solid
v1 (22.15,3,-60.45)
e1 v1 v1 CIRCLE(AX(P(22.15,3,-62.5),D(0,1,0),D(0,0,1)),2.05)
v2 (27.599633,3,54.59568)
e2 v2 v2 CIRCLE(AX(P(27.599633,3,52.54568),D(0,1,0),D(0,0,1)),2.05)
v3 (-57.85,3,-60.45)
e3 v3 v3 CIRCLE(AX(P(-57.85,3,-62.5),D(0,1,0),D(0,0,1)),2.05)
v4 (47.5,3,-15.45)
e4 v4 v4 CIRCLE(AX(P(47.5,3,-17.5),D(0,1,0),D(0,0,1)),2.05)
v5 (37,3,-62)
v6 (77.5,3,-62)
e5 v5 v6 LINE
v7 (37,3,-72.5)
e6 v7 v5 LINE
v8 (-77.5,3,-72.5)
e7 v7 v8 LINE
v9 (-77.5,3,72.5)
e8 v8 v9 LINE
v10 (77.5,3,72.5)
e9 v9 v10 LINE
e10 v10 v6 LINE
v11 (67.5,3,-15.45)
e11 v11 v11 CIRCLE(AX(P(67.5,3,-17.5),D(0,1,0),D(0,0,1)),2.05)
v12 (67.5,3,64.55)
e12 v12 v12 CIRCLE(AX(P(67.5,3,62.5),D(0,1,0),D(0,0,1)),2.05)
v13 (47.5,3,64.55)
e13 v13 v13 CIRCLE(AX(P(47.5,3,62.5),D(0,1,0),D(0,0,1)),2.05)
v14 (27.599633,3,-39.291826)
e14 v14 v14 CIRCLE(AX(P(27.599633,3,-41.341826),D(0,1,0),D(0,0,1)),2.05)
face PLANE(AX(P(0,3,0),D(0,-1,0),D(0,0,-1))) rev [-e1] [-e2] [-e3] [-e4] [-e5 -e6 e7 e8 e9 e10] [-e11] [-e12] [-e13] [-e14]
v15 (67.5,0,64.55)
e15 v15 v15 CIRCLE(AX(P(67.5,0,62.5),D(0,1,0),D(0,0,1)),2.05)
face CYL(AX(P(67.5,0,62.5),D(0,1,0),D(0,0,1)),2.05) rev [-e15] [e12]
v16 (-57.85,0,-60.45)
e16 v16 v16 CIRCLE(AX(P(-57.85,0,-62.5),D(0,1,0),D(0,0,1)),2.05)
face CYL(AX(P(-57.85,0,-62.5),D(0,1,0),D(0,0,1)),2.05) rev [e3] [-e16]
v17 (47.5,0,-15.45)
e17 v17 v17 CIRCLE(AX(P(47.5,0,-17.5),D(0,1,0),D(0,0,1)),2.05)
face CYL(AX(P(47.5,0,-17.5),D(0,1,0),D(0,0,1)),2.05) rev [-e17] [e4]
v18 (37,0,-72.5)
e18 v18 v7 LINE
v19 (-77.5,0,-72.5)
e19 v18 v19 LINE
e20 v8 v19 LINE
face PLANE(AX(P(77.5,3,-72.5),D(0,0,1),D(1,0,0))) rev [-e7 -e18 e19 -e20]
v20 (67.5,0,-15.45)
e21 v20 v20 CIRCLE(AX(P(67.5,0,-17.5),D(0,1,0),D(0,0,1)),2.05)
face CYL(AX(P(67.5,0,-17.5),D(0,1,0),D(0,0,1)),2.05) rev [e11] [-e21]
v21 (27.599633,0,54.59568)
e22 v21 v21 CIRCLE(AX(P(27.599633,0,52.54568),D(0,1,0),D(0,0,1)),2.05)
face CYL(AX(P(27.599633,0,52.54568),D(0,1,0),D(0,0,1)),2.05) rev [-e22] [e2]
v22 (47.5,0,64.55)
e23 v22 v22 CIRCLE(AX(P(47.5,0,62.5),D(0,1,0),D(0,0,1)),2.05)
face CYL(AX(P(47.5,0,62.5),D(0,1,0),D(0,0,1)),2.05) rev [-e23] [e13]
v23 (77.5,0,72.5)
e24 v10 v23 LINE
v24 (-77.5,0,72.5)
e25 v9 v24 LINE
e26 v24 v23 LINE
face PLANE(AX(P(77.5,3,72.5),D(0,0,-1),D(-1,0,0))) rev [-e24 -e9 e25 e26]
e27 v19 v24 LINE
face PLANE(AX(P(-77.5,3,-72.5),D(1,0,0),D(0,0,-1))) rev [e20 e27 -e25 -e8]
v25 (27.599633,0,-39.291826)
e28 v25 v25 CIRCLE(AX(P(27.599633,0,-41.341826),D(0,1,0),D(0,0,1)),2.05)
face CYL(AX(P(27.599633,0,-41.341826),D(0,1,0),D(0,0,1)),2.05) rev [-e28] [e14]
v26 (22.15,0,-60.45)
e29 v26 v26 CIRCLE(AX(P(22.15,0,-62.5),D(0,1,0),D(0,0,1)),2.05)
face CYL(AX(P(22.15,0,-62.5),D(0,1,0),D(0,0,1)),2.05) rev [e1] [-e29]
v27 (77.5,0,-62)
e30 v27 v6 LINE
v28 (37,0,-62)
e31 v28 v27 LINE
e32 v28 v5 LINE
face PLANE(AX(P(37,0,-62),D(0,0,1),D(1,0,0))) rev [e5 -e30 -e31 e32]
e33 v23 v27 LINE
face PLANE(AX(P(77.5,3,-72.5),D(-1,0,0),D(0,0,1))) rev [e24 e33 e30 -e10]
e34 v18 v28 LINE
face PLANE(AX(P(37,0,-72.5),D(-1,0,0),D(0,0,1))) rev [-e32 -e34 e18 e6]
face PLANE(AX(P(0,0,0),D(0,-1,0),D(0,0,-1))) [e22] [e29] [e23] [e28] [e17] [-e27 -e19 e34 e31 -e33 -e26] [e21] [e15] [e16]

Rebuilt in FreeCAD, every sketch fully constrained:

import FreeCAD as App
import Part
import Sketcher
from FreeCAD import Vector
Q = App.Units.Quantity


def add_polygon(sketch, points):
    """Adds a closed chain of lines whose ends are joined by coincident constraints."""
    first, n = sketch.GeometryCount, len(points)
    for a, b in zip(points, points[1:] + points[:1]):
        sketch.addGeometry(Part.LineSegment(App.Vector(*a, 0), App.Vector(*b, 0)), False)
    for i in range(n):
        sketch.addConstraint(Sketcher.Constraint("Coincident", first + i, 2, first + (i + 1) % n, 1))

doc = App.newDocument("Part")
body = doc.addObject("PartDesign::Body", "Body")

# Sketch on XZ plane
sketch1 = body.newObject("Sketcher::SketchObject", "Sketch")
sketch1.AttachmentSupport = (doc.getObject("XZ_Plane"), [""])
sketch1.MapMode = "FlatFace"
add_polygon(sketch1, [(-78, -72), (-78, 72), (78, 72), (78, -72)])  # lines 0-3
sketch1.addConstraint([
    Sketcher.Constraint("Vertical", 0),
    Sketcher.Constraint("Horizontal", 1),
    Sketcher.Constraint("Vertical", 2),
    Sketcher.Constraint("Horizontal", 3),
    Sketcher.Constraint("Symmetric", 0, 2, 2, 2, -1, 1),
    Sketcher.Constraint("DistanceX", 1, 1, 1, 2, Q("155 mm")),
    Sketcher.Constraint("DistanceY", 0, 1, 0, 2, Q("145 mm")),
])
pad1 = body.newObject("PartDesign::Pad", "Pad")
pad1.Profile = sketch1
pad1.Length = 3
pad1.Reversed = True

# Sketch on XZ plane
sketch2 = body.newObject("Sketcher::SketchObject", "Sketch001")
sketch2.AttachmentSupport = (doc.getObject("XZ_Plane"), [""])
sketch2.MapMode = "FlatFace"
sketch2.AttachmentOffset = App.Placement(Vector(0, 0, -3), App.Rotation())
add_polygon(sketch2, [(37, -72), (37, -62), (78, -62), (78, -72)])  # lines 0-3
sketch2.addConstraint([
    Sketcher.Constraint("Vertical", 0),
    Sketcher.Constraint("Horizontal", 1),
    Sketcher.Constraint("Vertical", 2),
    Sketcher.Constraint("Horizontal", 3),
    Sketcher.Constraint("DistanceX", 1, 1, 1, 2, Q("40.5 mm")),
    Sketcher.Constraint("DistanceY", 0, 1, 0, 2, Q("10.5 mm")),
    Sketcher.Constraint("DistanceX", -1, 1, 0, 2, Q("37 mm")),
    Sketcher.Constraint("DistanceY", 0, 2, -1, 1, Q("62 mm")),
])
pocket1 = body.newObject("PartDesign::Pocket", "Pocket")
pocket1.Profile = sketch2
pocket1.Length = 3
pocket1.Reversed = True

# Sketch on XZ plane
sketch3 = body.newObject("Sketcher::SketchObject", "Sketch002")
sketch3.AttachmentSupport = (doc.getObject("XZ_Plane"), [""])
sketch3.MapMode = "FlatFace"
sketch3.AttachmentOffset = App.Placement(Vector(0, 0, -3), App.Rotation())
sketch3.addGeometry([
    Part.Circle(Vector(-57.9, -62.5, 0), Vector(0, 0, 1), 2),  # 0
    Part.Circle(Vector(22.1, -62.5, 0), Vector(0, 0, 1), 2),  # 1
    Part.Circle(Vector(47.5, -17.5, 0), Vector(0, 0, 1), 2),  # 2
    Part.Circle(Vector(67.5, -17.5, 0), Vector(0, 0, 1), 2),  # 3
    Part.Circle(Vector(47.5, 62.5, 0), Vector(0, 0, 1), 2),  # 4
    Part.Circle(Vector(67.5, 62.5, 0), Vector(0, 0, 1), 2),  # 5
], False)
sketch3.addConstraint([
    Sketcher.Constraint("Equal", 0, 1),
    Sketcher.Constraint("Equal", 1, 2),
    Sketcher.Constraint("Equal", 2, 3),
    Sketcher.Constraint("Equal", 3, 4),
    Sketcher.Constraint("Equal", 4, 5),
    Sketcher.Constraint("Horizontal", 0, 3, 1, 3),
    Sketcher.Constraint("Horizontal", 2, 3, 3, 3),
    Sketcher.Constraint("Horizontal", 4, 3, 5, 3),
    Sketcher.Constraint("Vertical", 2, 3, 4, 3),
    Sketcher.Constraint("Vertical", 3, 3, 5, 3),
    Sketcher.Constraint("Diameter", 0, Q("4.1 mm")),
    Sketcher.Constraint("DistanceX", 0, 3, 1, 3, Q("80 mm")),
    Sketcher.Constraint("DistanceY", 1, 3, 2, 3, Q("45 mm")),
    Sketcher.Constraint("DistanceX", 2, 3, 3, 3, Q("20 mm")),
    Sketcher.Constraint("DistanceY", 2, 3, 4, 3, Q("80 mm")),
    Sketcher.Constraint("DistanceY", 0, 3, -1, 1, Q("62.5 mm")),
    Sketcher.Constraint("DistanceX", -1, 1, 2, 3, Q("47.5 mm")),
    Sketcher.Constraint("DistanceX", 0, 3, -1, 1, Q("57.85 mm")),
])
pocket2 = body.newObject("PartDesign::Pocket", "Pocket001")
pocket2.Profile = sketch3
pocket2.Length = 3
pocket2.Reversed = True

# Sketch on XZ plane
sketch4 = body.newObject("Sketcher::SketchObject", "Sketch003")
sketch4.AttachmentSupport = (doc.getObject("XZ_Plane"), [""])
sketch4.MapMode = "FlatFace"
sketch4.AttachmentOffset = App.Placement(Vector(0, 0, -3), App.Rotation())
sketch4.addGeometry([
    Part.Circle(Vector(27.6, 52.5, 0), Vector(0, 0, 1), 2),
    Part.Circle(Vector(27.6, -41.3, 0), Vector(0, 0, 1), 2),
], False)
sketch4.addConstraint([
    Sketcher.Constraint("Equal", 0, 1),
    Sketcher.Constraint("Vertical", 0, 3, 1, 3),
    Sketcher.Constraint("Diameter", 0, Q("4.1 mm")),
    Sketcher.Constraint("DistanceY", -1, 1, 0, 3, Q("52.54568 mm")),
    Sketcher.Constraint("DistanceX", -1, 1, 0, 3, Q("27.599633 mm")),
    Sketcher.Constraint("DistanceY", 1, 3, -1, 1, Q("41.341826 mm")),
])
pocket3 = body.newObject("PartDesign::Pocket", "Pocket002")
pocket3.Profile = sketch4
pocket3.Length = 3
pocket3.Reversed = True

doc.recompute()
